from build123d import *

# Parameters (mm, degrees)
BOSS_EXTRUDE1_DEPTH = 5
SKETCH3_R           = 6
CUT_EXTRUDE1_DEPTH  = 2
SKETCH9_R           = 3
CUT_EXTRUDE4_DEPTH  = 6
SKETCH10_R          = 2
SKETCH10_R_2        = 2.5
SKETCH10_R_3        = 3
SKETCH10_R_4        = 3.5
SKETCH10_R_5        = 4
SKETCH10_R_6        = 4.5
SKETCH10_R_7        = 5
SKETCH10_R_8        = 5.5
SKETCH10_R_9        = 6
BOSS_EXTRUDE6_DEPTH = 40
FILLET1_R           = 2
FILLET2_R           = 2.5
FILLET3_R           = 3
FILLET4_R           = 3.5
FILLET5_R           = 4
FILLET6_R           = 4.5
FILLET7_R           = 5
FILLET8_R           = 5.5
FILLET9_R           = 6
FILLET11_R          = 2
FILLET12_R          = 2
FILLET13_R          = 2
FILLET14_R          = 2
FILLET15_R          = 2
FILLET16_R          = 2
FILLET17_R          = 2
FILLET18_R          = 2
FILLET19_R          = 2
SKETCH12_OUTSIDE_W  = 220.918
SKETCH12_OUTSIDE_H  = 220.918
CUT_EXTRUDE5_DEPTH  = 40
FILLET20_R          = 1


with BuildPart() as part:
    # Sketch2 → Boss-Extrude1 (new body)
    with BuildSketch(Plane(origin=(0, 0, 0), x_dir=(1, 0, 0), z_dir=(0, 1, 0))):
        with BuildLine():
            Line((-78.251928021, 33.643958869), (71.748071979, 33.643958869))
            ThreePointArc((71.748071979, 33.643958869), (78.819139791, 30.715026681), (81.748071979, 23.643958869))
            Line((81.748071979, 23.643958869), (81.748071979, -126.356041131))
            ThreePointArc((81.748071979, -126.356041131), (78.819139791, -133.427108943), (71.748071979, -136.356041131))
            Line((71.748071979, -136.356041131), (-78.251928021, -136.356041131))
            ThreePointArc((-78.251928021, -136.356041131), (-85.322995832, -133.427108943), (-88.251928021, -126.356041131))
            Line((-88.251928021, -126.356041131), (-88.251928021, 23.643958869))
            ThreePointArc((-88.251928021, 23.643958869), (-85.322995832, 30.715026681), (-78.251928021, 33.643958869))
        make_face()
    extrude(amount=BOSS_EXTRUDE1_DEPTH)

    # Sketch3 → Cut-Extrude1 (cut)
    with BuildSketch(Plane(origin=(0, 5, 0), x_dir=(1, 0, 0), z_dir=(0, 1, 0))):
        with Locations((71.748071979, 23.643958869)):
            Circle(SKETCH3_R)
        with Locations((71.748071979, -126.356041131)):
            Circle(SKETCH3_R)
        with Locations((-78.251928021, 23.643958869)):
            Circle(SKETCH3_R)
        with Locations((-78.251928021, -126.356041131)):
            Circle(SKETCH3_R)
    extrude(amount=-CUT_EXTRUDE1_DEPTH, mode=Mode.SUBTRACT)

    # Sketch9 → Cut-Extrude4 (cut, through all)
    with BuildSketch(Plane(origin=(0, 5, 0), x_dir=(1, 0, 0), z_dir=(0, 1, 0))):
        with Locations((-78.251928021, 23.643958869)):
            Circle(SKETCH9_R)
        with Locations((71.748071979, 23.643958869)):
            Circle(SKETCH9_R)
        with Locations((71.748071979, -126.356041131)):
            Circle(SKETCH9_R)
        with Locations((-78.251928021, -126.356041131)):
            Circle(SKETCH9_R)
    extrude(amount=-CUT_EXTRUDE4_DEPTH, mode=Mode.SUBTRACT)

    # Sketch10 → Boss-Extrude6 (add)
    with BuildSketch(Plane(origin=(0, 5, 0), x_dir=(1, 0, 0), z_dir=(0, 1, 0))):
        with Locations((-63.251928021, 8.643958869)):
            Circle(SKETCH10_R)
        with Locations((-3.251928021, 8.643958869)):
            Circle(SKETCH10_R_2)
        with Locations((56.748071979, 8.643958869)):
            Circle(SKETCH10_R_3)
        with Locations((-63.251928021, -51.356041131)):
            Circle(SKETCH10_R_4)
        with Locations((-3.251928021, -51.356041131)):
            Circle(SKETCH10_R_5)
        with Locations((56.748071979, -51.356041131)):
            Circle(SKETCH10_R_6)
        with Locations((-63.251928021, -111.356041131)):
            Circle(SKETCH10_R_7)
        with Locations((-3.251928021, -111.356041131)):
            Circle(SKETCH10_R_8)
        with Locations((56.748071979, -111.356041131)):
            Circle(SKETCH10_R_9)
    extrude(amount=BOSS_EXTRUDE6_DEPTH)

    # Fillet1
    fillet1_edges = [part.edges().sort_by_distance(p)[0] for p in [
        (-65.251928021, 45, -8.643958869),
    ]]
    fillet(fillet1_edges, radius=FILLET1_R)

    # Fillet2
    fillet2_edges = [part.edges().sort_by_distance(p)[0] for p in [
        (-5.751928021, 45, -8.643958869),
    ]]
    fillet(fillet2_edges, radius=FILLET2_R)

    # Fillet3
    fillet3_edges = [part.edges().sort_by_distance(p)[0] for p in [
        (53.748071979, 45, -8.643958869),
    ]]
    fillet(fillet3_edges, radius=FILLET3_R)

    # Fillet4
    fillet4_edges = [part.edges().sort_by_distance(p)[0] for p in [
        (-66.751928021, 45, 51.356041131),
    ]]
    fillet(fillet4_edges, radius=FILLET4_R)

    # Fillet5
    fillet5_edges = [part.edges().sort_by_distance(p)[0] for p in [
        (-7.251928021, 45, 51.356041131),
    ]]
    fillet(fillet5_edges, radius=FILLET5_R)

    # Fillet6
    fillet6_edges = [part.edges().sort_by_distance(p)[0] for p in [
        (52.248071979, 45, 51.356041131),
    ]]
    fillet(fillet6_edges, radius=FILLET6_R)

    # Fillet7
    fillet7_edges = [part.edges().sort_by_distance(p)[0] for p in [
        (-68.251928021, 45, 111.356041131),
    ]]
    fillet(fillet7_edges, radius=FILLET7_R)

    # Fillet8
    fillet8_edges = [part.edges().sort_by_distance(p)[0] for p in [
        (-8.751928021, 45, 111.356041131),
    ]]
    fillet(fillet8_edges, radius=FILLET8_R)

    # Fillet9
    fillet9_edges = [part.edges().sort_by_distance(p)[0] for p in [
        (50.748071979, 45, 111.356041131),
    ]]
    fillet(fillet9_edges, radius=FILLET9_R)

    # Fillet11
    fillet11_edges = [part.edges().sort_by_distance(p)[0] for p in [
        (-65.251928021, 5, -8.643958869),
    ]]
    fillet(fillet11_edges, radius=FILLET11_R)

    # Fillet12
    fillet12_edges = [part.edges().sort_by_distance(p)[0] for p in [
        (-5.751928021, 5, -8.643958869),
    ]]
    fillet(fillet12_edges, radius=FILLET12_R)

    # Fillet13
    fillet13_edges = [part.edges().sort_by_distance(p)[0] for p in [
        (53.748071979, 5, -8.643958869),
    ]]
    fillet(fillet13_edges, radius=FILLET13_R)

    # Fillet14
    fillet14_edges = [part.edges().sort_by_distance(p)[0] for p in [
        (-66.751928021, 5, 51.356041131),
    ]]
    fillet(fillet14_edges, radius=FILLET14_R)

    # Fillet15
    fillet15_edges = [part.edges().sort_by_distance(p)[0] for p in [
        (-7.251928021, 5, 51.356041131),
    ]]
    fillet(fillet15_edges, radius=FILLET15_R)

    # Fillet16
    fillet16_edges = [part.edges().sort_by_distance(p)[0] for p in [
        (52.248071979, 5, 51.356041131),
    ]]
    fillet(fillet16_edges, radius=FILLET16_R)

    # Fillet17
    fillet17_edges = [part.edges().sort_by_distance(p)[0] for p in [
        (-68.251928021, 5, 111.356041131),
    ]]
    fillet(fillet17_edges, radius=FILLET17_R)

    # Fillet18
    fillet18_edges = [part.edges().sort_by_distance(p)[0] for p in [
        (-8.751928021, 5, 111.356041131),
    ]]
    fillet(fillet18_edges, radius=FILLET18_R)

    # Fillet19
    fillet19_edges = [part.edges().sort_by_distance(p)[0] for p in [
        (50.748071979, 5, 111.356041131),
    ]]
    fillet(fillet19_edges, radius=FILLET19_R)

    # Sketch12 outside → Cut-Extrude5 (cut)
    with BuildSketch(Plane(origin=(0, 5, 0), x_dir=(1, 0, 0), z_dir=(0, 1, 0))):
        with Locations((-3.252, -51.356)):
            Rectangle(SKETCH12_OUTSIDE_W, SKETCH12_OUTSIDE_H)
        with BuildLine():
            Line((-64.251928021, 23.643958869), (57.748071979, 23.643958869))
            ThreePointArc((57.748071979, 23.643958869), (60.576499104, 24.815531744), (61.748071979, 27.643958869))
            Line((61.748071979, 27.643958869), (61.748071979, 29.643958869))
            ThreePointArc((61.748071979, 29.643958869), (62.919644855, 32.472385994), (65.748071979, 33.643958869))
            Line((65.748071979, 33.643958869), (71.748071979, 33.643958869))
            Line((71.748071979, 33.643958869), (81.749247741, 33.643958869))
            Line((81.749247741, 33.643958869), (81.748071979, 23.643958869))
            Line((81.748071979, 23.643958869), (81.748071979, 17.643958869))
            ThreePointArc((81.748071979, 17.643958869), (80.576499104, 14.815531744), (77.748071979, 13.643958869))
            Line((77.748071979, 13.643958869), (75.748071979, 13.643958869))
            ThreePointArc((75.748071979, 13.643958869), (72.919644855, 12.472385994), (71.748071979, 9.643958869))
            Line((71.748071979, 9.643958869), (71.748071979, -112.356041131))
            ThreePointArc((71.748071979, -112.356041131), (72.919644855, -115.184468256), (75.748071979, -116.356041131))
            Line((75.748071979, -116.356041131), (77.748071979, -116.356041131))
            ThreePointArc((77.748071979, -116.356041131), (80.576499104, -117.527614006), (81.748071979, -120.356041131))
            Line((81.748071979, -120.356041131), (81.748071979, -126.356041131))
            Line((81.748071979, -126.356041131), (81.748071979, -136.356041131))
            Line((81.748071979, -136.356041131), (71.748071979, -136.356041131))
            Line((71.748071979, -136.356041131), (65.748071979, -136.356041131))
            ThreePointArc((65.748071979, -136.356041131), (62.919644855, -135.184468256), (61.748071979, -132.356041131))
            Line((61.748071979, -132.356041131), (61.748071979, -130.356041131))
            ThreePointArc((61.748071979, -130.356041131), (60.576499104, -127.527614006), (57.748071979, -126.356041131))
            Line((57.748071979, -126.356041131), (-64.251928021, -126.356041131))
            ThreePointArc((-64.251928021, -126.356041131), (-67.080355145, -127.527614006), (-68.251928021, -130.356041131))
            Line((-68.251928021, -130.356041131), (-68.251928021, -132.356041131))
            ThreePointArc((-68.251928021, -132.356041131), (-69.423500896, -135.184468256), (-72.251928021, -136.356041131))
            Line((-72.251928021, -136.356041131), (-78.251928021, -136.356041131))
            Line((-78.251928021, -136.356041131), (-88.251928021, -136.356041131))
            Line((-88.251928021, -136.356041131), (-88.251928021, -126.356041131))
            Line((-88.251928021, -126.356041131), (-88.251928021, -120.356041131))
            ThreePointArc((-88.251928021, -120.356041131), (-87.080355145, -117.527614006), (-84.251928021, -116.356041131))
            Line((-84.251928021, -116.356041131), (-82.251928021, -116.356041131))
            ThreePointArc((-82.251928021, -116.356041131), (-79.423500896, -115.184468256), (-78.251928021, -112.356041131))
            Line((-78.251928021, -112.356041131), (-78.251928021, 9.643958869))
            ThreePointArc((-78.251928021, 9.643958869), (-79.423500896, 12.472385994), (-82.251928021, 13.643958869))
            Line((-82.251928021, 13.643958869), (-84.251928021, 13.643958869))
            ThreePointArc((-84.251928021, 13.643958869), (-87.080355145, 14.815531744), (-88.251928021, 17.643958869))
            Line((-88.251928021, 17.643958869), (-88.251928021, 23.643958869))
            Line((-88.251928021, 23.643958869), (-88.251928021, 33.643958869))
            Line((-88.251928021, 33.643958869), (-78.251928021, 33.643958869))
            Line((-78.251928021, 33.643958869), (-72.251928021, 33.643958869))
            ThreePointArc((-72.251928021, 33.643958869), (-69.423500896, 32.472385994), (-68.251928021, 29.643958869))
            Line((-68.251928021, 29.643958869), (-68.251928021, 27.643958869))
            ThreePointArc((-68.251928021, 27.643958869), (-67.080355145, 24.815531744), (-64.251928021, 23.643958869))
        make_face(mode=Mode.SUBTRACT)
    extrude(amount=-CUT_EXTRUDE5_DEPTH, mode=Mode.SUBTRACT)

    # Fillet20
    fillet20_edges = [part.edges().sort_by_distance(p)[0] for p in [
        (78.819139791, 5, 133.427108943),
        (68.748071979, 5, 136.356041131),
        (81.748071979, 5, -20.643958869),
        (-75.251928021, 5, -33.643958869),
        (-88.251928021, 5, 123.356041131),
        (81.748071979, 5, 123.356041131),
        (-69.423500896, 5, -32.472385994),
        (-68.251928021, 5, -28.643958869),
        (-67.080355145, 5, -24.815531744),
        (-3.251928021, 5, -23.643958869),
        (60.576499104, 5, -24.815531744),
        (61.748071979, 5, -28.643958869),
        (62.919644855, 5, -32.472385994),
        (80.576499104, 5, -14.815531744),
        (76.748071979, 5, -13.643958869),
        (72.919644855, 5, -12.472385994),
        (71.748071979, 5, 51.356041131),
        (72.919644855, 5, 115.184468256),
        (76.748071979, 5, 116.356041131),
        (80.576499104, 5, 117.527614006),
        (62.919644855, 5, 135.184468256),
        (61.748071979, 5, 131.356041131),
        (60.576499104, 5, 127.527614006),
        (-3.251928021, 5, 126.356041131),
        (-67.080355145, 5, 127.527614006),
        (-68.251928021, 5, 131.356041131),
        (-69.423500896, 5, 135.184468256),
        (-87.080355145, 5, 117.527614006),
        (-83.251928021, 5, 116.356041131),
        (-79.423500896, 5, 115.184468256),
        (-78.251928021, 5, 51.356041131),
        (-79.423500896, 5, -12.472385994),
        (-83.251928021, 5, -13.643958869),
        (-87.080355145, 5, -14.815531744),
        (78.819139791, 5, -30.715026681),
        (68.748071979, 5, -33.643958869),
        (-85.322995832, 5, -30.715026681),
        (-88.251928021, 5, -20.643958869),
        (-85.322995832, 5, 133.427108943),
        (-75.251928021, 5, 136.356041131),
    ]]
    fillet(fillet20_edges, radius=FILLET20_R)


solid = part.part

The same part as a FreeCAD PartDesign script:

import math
import FreeCAD as App
import Part
import Sketcher
from FreeCAD import Vector
Q = App.Units.Quantity


def edges_at(feature, points):
    """Names of the edges that pass closest to the given points."""
    edges = feature.Shape.Edges
    near = lambda p: min(range(len(edges)), key=lambda i: edges[i].distToShape(Part.Vertex(*p))[0])
    return sorted({f"Edge{near(p) + 1}" for p in points})

doc = App.newDocument("Part")
body = doc.addObject("PartDesign::Body", "Body")

# Sketch on XZ plane
sketch1 = doc.addObject("Sketcher::SketchObject", "Sketch")
body.addObject(sketch1)
sketch1.AttachmentSupport = (doc.XZ_Plane, [""])
sketch1.MapMode = "FlatFace"
sketch1.addGeometry(Part.LineSegment(Vector(72, -34, 0), Vector(-78, -34, 0)), False)
sketch1.addGeometry(Part.ArcOfCircle(Part.Circle(Vector(-78, -24, 0), Vector(0, 0, 1), 10), math.radians(-180), math.radians(-90)), False)
sketch1.addGeometry(Part.LineSegment(Vector(-88, -24, 0), Vector(-88, 126, 0)), False)
sketch1.addGeometry(Part.ArcOfCircle(Part.Circle(Vector(-78, 126, 0), Vector(0, 0, 1), 10), math.radians(90), math.radians(180)), False)
sketch1.addGeometry(Part.LineSegment(Vector(-78, 136, 0), Vector(72, 136, 0)), False)
sketch1.addGeometry(Part.ArcOfCircle(Part.Circle(Vector(72, 126, 0), Vector(0, 0, 1), 10), math.radians(0), math.radians(90)), False)
sketch1.addGeometry(Part.LineSegment(Vector(82, 126, 0), Vector(82, -24, 0)), False)
sketch1.addGeometry(Part.ArcOfCircle(Part.Circle(Vector(72, -24, 0), Vector(0, 0, 1), 10), math.radians(-90), math.radians(0)), False)
sketch1.addConstraint(Sketcher.Constraint("Tangent", 0, 2, 1, 2))
sketch1.addConstraint(Sketcher.Constraint("Tangent", 1, 1, 2, 1))
sketch1.addConstraint(Sketcher.Constraint("Tangent", 2, 2, 3, 2))
sketch1.addConstraint(Sketcher.Constraint("Tangent", 3, 1, 4, 1))
sketch1.addConstraint(Sketcher.Constraint("Tangent", 4, 2, 5, 2))
sketch1.addConstraint(Sketcher.Constraint("Tangent", 5, 1, 6, 1))
sketch1.addConstraint(Sketcher.Constraint("Tangent", 6, 2, 7, 2))
sketch1.addConstraint(Sketcher.Constraint("Tangent", 7, 1, 0, 1))
sketch1.addConstraint(Sketcher.Constraint("Horizontal", 0))
sketch1.addConstraint(Sketcher.Constraint("Vertical", 2))
sketch1.addConstraint(Sketcher.Constraint("Horizontal", 4))
sketch1.addConstraint(Sketcher.Constraint("Vertical", 6))
sketch1.addConstraint(Sketcher.Constraint("Equal", 1, 3))
sketch1.addConstraint(Sketcher.Constraint("Equal", 3, 5))
sketch1.addConstraint(Sketcher.Constraint("Equal", 5, 7))
sketch1.addConstraint(Sketcher.Constraint("Equal", 4, 2))
sketch1.addConstraint(Sketcher.Constraint("Radius", 1, Q("10 mm")))
sketch1.addConstraint(Sketcher.Constraint("DistanceX", 0, 2, 0, 1, Q("150 mm")))
sketch1.addConstraint(Sketcher.Constraint("DistanceX", 1, 3, -1, 1, Q("78.251928 mm")))
sketch1.addConstraint(Sketcher.Constraint("DistanceY", 1, 3, -1, 1, Q("23.643959 mm")))
pad1 = doc.addObject("PartDesign::Pad", "Pad")
body.addObject(pad1)
pad1.Profile = sketch1
pad1.Length = 5
pad1.Reversed = True

# Sketch on XZ plane
sketch2 = doc.addObject("Sketcher::SketchObject", "Sketch001")
body.addObject(sketch2)
sketch2.AttachmentSupport = (doc.XZ_Plane, [""])
sketch2.MapMode = "FlatFace"
sketch2.AttachmentOffset = App.Placement(Vector(0, 0, -5), App.Rotation())
sketch2.addGeometry(Part.Circle(Vector(72, -24, 0), Vector(0, 0, 1), 6), False)
sketch2.addGeometry(Part.Circle(Vector(72, 126, 0), Vector(0, 0, 1), 6), False)
sketch2.addGeometry(Part.Circle(Vector(-78, -24, 0), Vector(0, 0, 1), 6), False)
sketch2.addGeometry(Part.Circle(Vector(-78, 126, 0), Vector(0, 0, 1), 6), False)
sketch2.addConstraint(Sketcher.Constraint("Equal", 0, 1))
sketch2.addConstraint(Sketcher.Constraint("Equal", 1, 2))
sketch2.addConstraint(Sketcher.Constraint("Equal", 2, 3))
sketch2.addConstraint(Sketcher.Constraint("Horizontal", 0, 3, 2, 3))
sketch2.addConstraint(Sketcher.Constraint("Horizontal", 1, 3, 3, 3))
sketch2.addConstraint(Sketcher.Constraint("Vertical", 0, 3, 1, 3))
sketch2.addConstraint(Sketcher.Constraint("Vertical", 2, 3, 3, 3))
sketch2.addConstraint(Sketcher.Constraint("Diameter", 0, Q("12 mm")))
sketch2.addConstraint(Sketcher.Constraint("DistanceY", 0, 3, 1, 3, Q("150 mm")))
sketch2.addConstraint(Sketcher.Constraint("DistanceX", 2, 3, 0, 3, Q("150 mm")))
sketch2.addConstraint(Sketcher.Constraint("DistanceX", -1, 1, 0, 3, Q("71.748072 mm")))
sketch2.addConstraint(Sketcher.Constraint("DistanceY", 0, 3, -1, 1, Q("23.643959 mm")))
pocket1 = doc.addObject("PartDesign::Pocket", "Pocket")
body.addObject(pocket1)
pocket1.Profile = sketch2
pocket1.Length = 2
pocket1.Reversed = True

# Sketch on XZ plane
sketch3 = doc.addObject("Sketcher::SketchObject", "Sketch002")
body.addObject(sketch3)
sketch3.AttachmentSupport = (doc.XZ_Plane, [""])
sketch3.MapMode = "FlatFace"
sketch3.AttachmentOffset = App.Placement(Vector(0, 0, -5), App.Rotation())
sketch3.addGeometry(Part.Circle(Vector(-78.3, -23.6, 0), Vector(0, 0, 1), 3), False)
sketch3.addGeometry(Part.Circle(Vector(71.7, -23.6, 0), Vector(0, 0, 1), 3), False)
sketch3.addGeometry(Part.Circle(Vector(71.7, 126.4, 0), Vector(0, 0, 1), 3), False)
sketch3.addGeometry(Part.Circle(Vector(-78.3, 126.4, 0), Vector(0, 0, 1), 3), False)
sketch3.addConstraint(Sketcher.Constraint("Equal", 0, 1))
sketch3.addConstraint(Sketcher.Constraint("Equal", 1, 2))
sketch3.addConstraint(Sketcher.Constraint("Equal", 2, 3))
sketch3.addConstraint(Sketcher.Constraint("Horizontal", 0, 3, 1, 3))
sketch3.addConstraint(Sketcher.Constraint("Horizontal", 2, 3, 3, 3))
sketch3.addConstraint(Sketcher.Constraint("Vertical", 1, 3, 2, 3))
sketch3.addConstraint(Sketcher.Constraint("Vertical", 0, 3, 3, 3))
sketch3.addConstraint(Sketcher.Constraint("Diameter", 0, Q("6 mm")))
sketch3.addConstraint(Sketcher.Constraint("DistanceX", 0, 3, 1, 3, Q("150 mm")))
sketch3.addConstraint(Sketcher.Constraint("DistanceY", 1, 3, 2, 3, Q("150 mm")))
sketch3.addConstraint(Sketcher.Constraint("DistanceX", 0, 3, -1, 1, Q("78.251928 mm")))
sketch3.addConstraint(Sketcher.Constraint("DistanceY", 0, 3, -1, 1, Q("23.643959 mm")))
pocket2 = doc.addObject("PartDesign::Pocket", "Pocket001")
body.addObject(pocket2)
pocket2.Profile = sketch3
pocket2.Type = "ThroughAll"
pocket2.Reversed = True

# Sketch on XZ plane
sketch4 = doc.addObject("Sketcher::SketchObject", "Sketch003")
body.addObject(sketch4)
sketch4.AttachmentSupport = (doc.XZ_Plane, [""])
sketch4.MapMode = "FlatFace"
sketch4.AttachmentOffset = App.Placement(Vector(0, 0, -5), App.Rotation())
sketch4.addGeometry(Part.Circle(Vector(-63.3, -8.6, 0), Vector(0, 0, 1), 2), False)
sketch4.addGeometry(Part.Circle(Vector(-3.3, -8.6, 0), Vector(0, 0, 1), 2.5), False)
sketch4.addGeometry(Part.Circle(Vector(56.7, -8.6, 0), Vector(0, 0, 1), 3), False)
sketch4.addGeometry(Part.Circle(Vector(-63.3, 51.4, 0), Vector(0, 0, 1), 3.5), False)
sketch4.addGeometry(Part.Circle(Vector(-3.3, 51.4, 0), Vector(0, 0, 1), 4), False)
sketch4.addGeometry(Part.Circle(Vector(56.7, 51.4, 0), Vector(0, 0, 1), 4.5), False)
sketch4.addGeometry(Part.Circle(Vector(-63.3, 111.4, 0), Vector(0, 0, 1), 5), False)
sketch4.addGeometry(Part.Circle(Vector(-3.3, 111.4, 0), Vector(0, 0, 1), 5.5), False)
sketch4.addGeometry(Part.Circle(Vector(56.7, 111.4, 0), Vector(0, 0, 1), 6), False)
sketch4.addConstraint(Sketcher.Constraint("Horizontal", 0, 3, 1, 3))
sketch4.addConstraint(Sketcher.Constraint("Horizontal", 1, 3, 2, 3))
sketch4.addConstraint(Sketcher.Constraint("Horizontal", 3, 3, 4, 3))
sketch4.addConstraint(Sketcher.Constraint("Horizontal", 4, 3, 5, 3))
sketch4.addConstraint(Sketcher.Constraint("Horizontal", 6, 3, 7, 3))
sketch4.addConstraint(Sketcher.Constraint("Horizontal", 7, 3, 8, 3))
sketch4.addConstraint(Sketcher.Constraint("Vertical", 0, 3, 3, 3))
sketch4.addConstraint(Sketcher.Constraint("Vertical", 1, 3, 4, 3))
sketch4.addConstraint(Sketcher.Constraint("Vertical", 2, 3, 5, 3))
sketch4.addConstraint(Sketcher.Constraint("Vertical", 3, 3, 6, 3))
sketch4.addConstraint(Sketcher.Constraint("Vertical", 4, 3, 7, 3))
sketch4.addConstraint(Sketcher.Constraint("Vertical", 5, 3, 8, 3))
sketch4.addConstraint(Sketcher.Constraint("Diameter", 0, Q("4 mm")))
sketch4.addConstraint(Sketcher.Constraint("Diameter", 1, Q("5 mm")))
sketch4.addConstraint(Sketcher.Constraint("Diameter", 2, Q("6 mm")))
sketch4.addConstraint(Sketcher.Constraint("Diameter", 3, Q("7 mm")))
sketch4.addConstraint(Sketcher.Constraint("Diameter", 4, Q("8 mm")))
sketch4.addConstraint(Sketcher.Constraint("Diameter", 5, Q("9 mm")))
sketch4.addConstraint(Sketcher.Constraint("Diameter", 6, Q("10 mm")))
sketch4.addConstraint(Sketcher.Constraint("Diameter", 7, Q("11 mm")))
sketch4.addConstraint(Sketcher.Constraint("Diameter", 8, Q("12 mm")))
sketch4.addConstraint(Sketcher.Constraint("DistanceX", 0, 3, 1, 3, Q("60 mm")))
sketch4.addConstraint(Sketcher.Constraint("DistanceX", 1, 3, 2, 3, Q("60 mm")))
sketch4.addConstraint(Sketcher.Constraint("DistanceY", 0, 3, 3, 3, Q("60 mm")))
sketch4.addConstraint(Sketcher.Constraint("DistanceY", 3, 3, 6, 3, Q("60 mm")))
sketch4.addConstraint(Sketcher.Constraint("DistanceX", 0, 3, -1, 1, Q("63.251928 mm")))
sketch4.addConstraint(Sketcher.Constraint("DistanceY", 0, 3, -1, 1, Q("8.643959 mm")))
pad2 = doc.addObject("PartDesign::Pad", "Pad001")
body.addObject(pad2)
pad2.Profile = sketch4
pad2.Length = 40
pad2.Reversed = True
doc.recompute()

fillet = doc.addObject("PartDesign::Fillet", "Fillet")
body.addObject(fillet)
fillet.Base = (pad2, edges_at(pad2, [(-65.252, 45, -8.644)]))
fillet.Radius = 2
doc.recompute()

fillet2 = doc.addObject("PartDesign::Fillet", "Fillet001")
body.addObject(fillet2)
fillet2.Base = (fillet, edges_at(fillet, [(-5.752, 45, -8.644)]))
fillet2.Radius = 2.5
doc.recompute()

fillet3 = doc.addObject("PartDesign::Fillet", "Fillet002")
body.addObject(fillet3)
fillet3.Base = (fillet2, edges_at(fillet2, [(53.748, 45, -8.644)]))
fillet3.Radius = 3
doc.recompute()

fillet4 = doc.addObject("PartDesign::Fillet", "Fillet003")
body.addObject(fillet4)
fillet4.Base = (fillet3, edges_at(fillet3, [(-66.752, 45, 51.356)]))
fillet4.Radius = 3.5
doc.recompute()

fillet5 = doc.addObject("PartDesign::Fillet", "Fillet004")
body.addObject(fillet5)
fillet5.Base = (fillet4, edges_at(fillet4, [(-7.252, 45, 51.356)]))
fillet5.Radius = 4
doc.recompute()

fillet6 = doc.addObject("PartDesign::Fillet", "Fillet005")
body.addObject(fillet6)
fillet6.Base = (fillet5, edges_at(fillet5, [(52.248, 45, 51.356)]))
fillet6.Radius = 4.5
doc.recompute()

fillet7 = doc.addObject("PartDesign::Fillet", "Fillet006")
body.addObject(fillet7)
fillet7.Base = (fillet6, edges_at(fillet6, [(-68.252, 45, 111.356)]))
fillet7.Radius = 5
doc.recompute()

fillet8 = doc.addObject("PartDesign::Fillet", "Fillet007")
body.addObject(fillet8)
fillet8.Base = (fillet7, edges_at(fillet7, [(-8.752, 45, 111.356)]))
fillet8.Radius = 5.5
doc.recompute()

fillet9 = doc.addObject("PartDesign::Fillet", "Fillet008")
body.addObject(fillet9)
fillet9.Base = (fillet8, edges_at(fillet8, [(50.748, 45, 111.356)]))
fillet9.Radius = 6
doc.recompute()

fillet10 = doc.addObject("PartDesign::Fillet", "Fillet009")
body.addObject(fillet10)
fillet10.Base = (fillet9, edges_at(fillet9, [(-65.252, 5, -8.644)]))
fillet10.Radius = 2
doc.recompute()

fillet11 = doc.addObject("PartDesign::Fillet", "Fillet010")
body.addObject(fillet11)
fillet11.Base = (fillet10, edges_at(fillet10, [(-5.752, 5, -8.644)]))
fillet11.Radius = 2
doc.recompute()

fillet12 = doc.addObject("PartDesign::Fillet", "Fillet011")
body.addObject(fillet12)
fillet12.Base = (fillet11, edges_at(fillet11, [(53.748, 5, -8.644)]))
fillet12.Radius = 2
doc.recompute()

fillet13 = doc.addObject("PartDesign::Fillet", "Fillet012")
body.addObject(fillet13)
fillet13.Base = (fillet12, edges_at(fillet12, [(-66.752, 5, 51.356)]))
fillet13.Radius = 2
doc.recompute()

fillet14 = doc.addObject("PartDesign::Fillet", "Fillet013")
body.addObject(fillet14)
fillet14.Base = (fillet13, edges_at(fillet13, [(-7.252, 5, 51.356)]))
fillet14.Radius = 2
doc.recompute()

fillet15 = doc.addObject("PartDesign::Fillet", "Fillet014")
body.addObject(fillet15)
fillet15.Base = (fillet14, edges_at(fillet14, [(52.248, 5, 51.356)]))
fillet15.Radius = 2
doc.recompute()

fillet16 = doc.addObject("PartDesign::Fillet", "Fillet015")
body.addObject(fillet16)
fillet16.Base = (fillet15, edges_at(fillet15, [(-68.252, 5, 111.356)]))
fillet16.Radius = 2
doc.recompute()

fillet17 = doc.addObject("PartDesign::Fillet", "Fillet016")
body.addObject(fillet17)
fillet17.Base = (fillet16, edges_at(fillet16, [(-8.752, 5, 111.356)]))
fillet17.Radius = 2
doc.recompute()

fillet18 = doc.addObject("PartDesign::Fillet", "Fillet017")
body.addObject(fillet18)
fillet18.Base = (fillet17, edges_at(fillet17, [(50.748, 5, 111.356)]))
fillet18.Radius = 2

# Sketch on XZ plane
sketch5 = doc.addObject("Sketcher::SketchObject", "Sketch004")
body.addObject(sketch5)
sketch5.AttachmentSupport = (doc.XZ_Plane, [""])
sketch5.MapMode = "FlatFace"
sketch5.AttachmentOffset = App.Placement(Vector(0, 0, -5), App.Rotation())
sketch5.addGeometry(Part.LineSegment(Vector(-113.7, -59.1, 0), Vector(-113.7, 161.8, 0)), False)
sketch5.addGeometry(Part.LineSegment(Vector(-113.7, 161.8, 0), Vector(107.2, 161.8, 0)), False)
sketch5.addGeometry(Part.LineSegment(Vector(107.2, 161.8, 0), Vector(107.2, -59.1, 0)), False)
sketch5.addGeometry(Part.LineSegment(Vector(107.2, -59.1, 0), Vector(-113.7, -59.1, 0)), False)
sketch5.addGeometry(Part.ArcOfCircle(Part.Circle(Vector(-64.3, -27.6, 0), Vector(0, 0, 1), 4), math.radians(90), math.radians(180)), False)
sketch5.addGeometry(Part.LineSegment(Vector(-64.3, -23.6, 0), Vector(57.7, -23.6, 0)), False)
sketch5.addGeometry(Part.ArcOfCircle(Part.Circle(Vector(57.7, -27.6, 0), Vector(0, 0, 1), 4), math.radians(0), math.radians(90)), False)
sketch5.addGeometry(Part.LineSegment(Vector(61.7, -27.6, 0), Vector(61.7, -29.6, 0)), False)
sketch5.addGeometry(Part.ArcOfCircle(Part.Circle(Vector(65.7, -29.6, 0), Vector(0, 0, 1), 4), math.radians(-180), math.radians(-90)), False)
sketch5.addGeometry(Part.LineSegment(Vector(65.7, -33.6, 0), Vector(81.7, -33.6, 0)), False)
sketch5.addGeometry(Part.LineSegment(Vector(81.7, -33.6, 0), Vector(81.7, -23.6, 0)), False)
sketch5.addGeometry(Part.LineSegment(Vector(81.7, -23.6, 0), Vector(81.7, -17.6, 0)), False)
sketch5.addGeometry(Part.ArcOfCircle(Part.Circle(Vector(77.7, -17.6, 0), Vector(0, 0, 1), 4), math.radians(0), math.radians(90)), False)
sketch5.addGeometry(Part.LineSegment(Vector(77.7, -13.6, 0), Vector(75.7, -13.6, 0)), False)
sketch5.addGeometry(Part.ArcOfCircle(Part.Circle(Vector(75.7, -9.6, 0), Vector(0, 0, 1), 4), math.radians(-180), math.radians(-90)), False)
sketch5.addGeometry(Part.LineSegment(Vector(71.7, -9.6, 0), Vector(71.7, 112.4, 0)), False)
sketch5.addGeometry(Part.ArcOfCircle(Part.Circle(Vector(75.7, 112.4, 0), Vector(0, 0, 1), 4), math.radians(90), math.radians(180)), False)
sketch5.addGeometry(Part.LineSegment(Vector(75.7, 116.4, 0), Vector(77.7, 116.4, 0)), False)
sketch5.addGeometry(Part.ArcOfCircle(Part.Circle(Vector(77.7, 120.4, 0), Vector(0, 0, 1), 4), math.radians(-90), math.radians(0)), False)
sketch5.addGeometry(Part.LineSegment(Vector(81.7, 120.4, 0), Vector(81.7, 136.4, 0)), False)
sketch5.addGeometry(Part.LineSegment(Vector(81.7, 136.4, 0), Vector(65.7, 136.4, 0)), False)
sketch5.addGeometry(Part.ArcOfCircle(Part.Circle(Vector(65.7, 132.4, 0), Vector(0, 0, 1), 4), math.radians(90), math.radians(180)), False)
sketch5.addGeometry(Part.LineSegment(Vector(61.7, 132.4, 0), Vector(61.7, 130.4, 0)), False)
sketch5.addGeometry(Part.ArcOfCircle(Part.Circle(Vector(57.7, 130.4, 0), Vector(0, 0, 1), 4), math.radians(-90), math.radians(0)), False)
sketch5.addGeometry(Part.LineSegment(Vector(57.7, 126.4, 0), Vector(-64.3, 126.4, 0)), False)
sketch5.addGeometry(Part.ArcOfCircle(Part.Circle(Vector(-64.3, 130.4, 0), Vector(0, 0, 1), 4), math.radians(-180), math.radians(-90)), False)
sketch5.addGeometry(Part.LineSegment(Vector(-68.3, 130.4, 0), Vector(-68.3, 132.4, 0)), False)
sketch5.addGeometry(Part.ArcOfCircle(Part.Circle(Vector(-72.3, 132.4, 0), Vector(0, 0, 1), 4), math.radians(0), math.radians(90)), False)
sketch5.addGeometry(Part.LineSegment(Vector(-72.3, 136.4, 0), Vector(-88.3, 136.4, 0)), False)
sketch5.addGeometry(Part.LineSegment(Vector(-88.3, 136.4, 0), Vector(-88.3, 120.4, 0)), False)
sketch5.addGeometry(Part.ArcOfCircle(Part.Circle(Vector(-84.3, 120.4, 0), Vector(0, 0, 1), 4), math.radians(-180), math.radians(-90)), False)
sketch5.addGeometry(Part.LineSegment(Vector(-84.3, 116.4, 0), Vector(-82.3, 116.4, 0)), False)
sketch5.addGeometry(Part.ArcOfCircle(Part.Circle(Vector(-82.3, 112.4, 0), Vector(0, 0, 1), 4), math.radians(0), math.radians(90)), False)
sketch5.addGeometry(Part.LineSegment(Vector(-78.3, 112.4, 0), Vector(-78.3, -9.6, 0)), False)
sketch5.addGeometry(Part.ArcOfCircle(Part.Circle(Vector(-82.3, -9.6, 0), Vector(0, 0, 1), 4), math.radians(-90), math.radians(0)), False)
sketch5.addGeometry(Part.LineSegment(Vector(-82.3, -13.6, 0), Vector(-84.3, -13.6, 0)), False)
sketch5.addGeometry(Part.ArcOfCircle(Part.Circle(Vector(-84.3, -17.6, 0), Vector(0, 0, 1), 4), math.radians(90), math.radians(180)), False)
sketch5.addGeometry(Part.LineSegment(Vector(-88.3, -17.6, 0), Vector(-88.3, -33.6, 0)), False)
sketch5.addGeometry(Part.LineSegment(Vector(-88.3, -33.6, 0), Vector(-72.3, -33.6, 0)), False)
sketch5.addGeometry(Part.ArcOfCircle(Part.Circle(Vector(-72.3, -29.6, 0), Vector(0, 0, 1), 4), math.radians(-90), math.radians(0)), False)
sketch5.addGeometry(Part.LineSegment(Vector(-68.3, -29.6, 0), Vector(-68.3, -27.6, 0)), False)
sketch5.addConstraint(Sketcher.Constraint("Coincident", 0, 2, 1, 1))
sketch5.addConstraint(Sketcher.Constraint("Coincident", 1, 2, 2, 1))
sketch5.addConstraint(Sketcher.Constraint("Coincident", 2, 2, 3, 1))
sketch5.addConstraint(Sketcher.Constraint("Coincident", 3, 2, 0, 1))
sketch5.addConstraint(Sketcher.Constraint("Tangent", 4, 1, 5, 1))
sketch5.addConstraint(Sketcher.Constraint("Tangent", 5, 2, 6, 2))
sketch5.addConstraint(Sketcher.Constraint("Tangent", 6, 1, 7, 1))
sketch5.addConstraint(Sketcher.Constraint("Tangent", 7, 2, 8, 1))
sketch5.addConstraint(Sketcher.Constraint("Tangent", 8, 2, 9, 1))
sketch5.addConstraint(Sketcher.Constraint("Coincident", 9, 2, 10, 1))
sketch5.addConstraint(Sketcher.Constraint("Coincident", 10, 2, 11, 1))
sketch5.addConstraint(Sketcher.Constraint("Tangent", 11, 2, 12, 1))
sketch5.addConstraint(Sketcher.Constraint("Tangent", 12, 2, 13, 1))
sketch5.addConstraint(Sketcher.Constraint("Tangent", 13, 2, 14, 2))
sketch5.addConstraint(Sketcher.Constraint("Tangent", 14, 1, 15, 1))
sketch5.addConstraint(Sketcher.Constraint("Tangent", 15, 2, 16, 2))
sketch5.addConstraint(Sketcher.Constraint("Tangent", 16, 1, 17, 1))
sketch5.addConstraint(Sketcher.Constraint("Tangent", 17, 2, 18, 1))
sketch5.addConstraint(Sketcher.Constraint("Tangent", 18, 2, 19, 1))
sketch5.addConstraint(Sketcher.Constraint("Coincident", 19, 2, 20, 1))
sketch5.addConstraint(Sketcher.Constraint("Tangent", 20, 2, 21, 1))
sketch5.addConstraint(Sketcher.Constraint("Tangent", 21, 2, 22, 1))
sketch5.addConstraint(Sketcher.Constraint("Tangent", 22, 2, 23, 2))
sketch5.addConstraint(Sketcher.Constraint("Tangent", 23, 1, 24, 1))
sketch5.addConstraint(Sketcher.Constraint("Tangent", 24, 2, 25, 2))
sketch5.addConstraint(Sketcher.Constraint("Tangent", 25, 1, 26, 1))
sketch5.addConstraint(Sketcher.Constraint("Tangent", 26, 2, 27, 1))
sketch5.addConstraint(Sketcher.Constraint("Tangent", 27, 2, 28, 1))
sketch5.addConstraint(Sketcher.Constraint("Coincident", 28, 2, 29, 1))
sketch5.addConstraint(Sketcher.Constraint("Tangent", 29, 2, 30, 1))
sketch5.addConstraint(Sketcher.Constraint("Tangent", 30, 2, 31, 1))
sketch5.addConstraint(Sketcher.Constraint("Tangent", 31, 2, 32, 2))
sketch5.addConstraint(Sketcher.Constraint("Tangent", 32, 1, 33, 1))
sketch5.addConstraint(Sketcher.Constraint("Tangent", 33, 2, 34, 2))
sketch5.addConstraint(Sketcher.Constraint("Tangent", 34, 1, 35, 1))
sketch5.addConstraint(Sketcher.Constraint("Tangent", 35, 2, 36, 1))
sketch5.addConstraint(Sketcher.Constraint("Tangent", 36, 2, 37, 1))
sketch5.addConstraint(Sketcher.Constraint("Coincident", 37, 2, 38, 1))
sketch5.addConstraint(Sketcher.Constraint("Tangent", 38, 2, 39, 1))
sketch5.addConstraint(Sketcher.Constraint("Tangent", 39, 2, 40, 1))
sketch5.addConstraint(Sketcher.Constraint("Tangent", 40, 2, 4, 2))
sketch5.addConstraint(Sketcher.Constraint("Vertical", 0))
sketch5.addConstraint(Sketcher.Constraint("Horizontal", 1))
sketch5.addConstraint(Sketcher.Constraint("Vertical", 2))
sketch5.addConstraint(Sketcher.Constraint("Horizontal", 3))
sketch5.addConstraint(Sketcher.Constraint("Horizontal", 5))
sketch5.addConstraint(Sketcher.Constraint("Vertical", 7))
sketch5.addConstraint(Sketcher.Constraint("Horizontal", 9))
sketch5.addConstraint(Sketcher.Constraint("Vertical", 11))
sketch5.addConstraint(Sketcher.Constraint("Horizontal", 13))
sketch5.addConstraint(Sketcher.Constraint("Vertical", 15))
sketch5.addConstraint(Sketcher.Constraint("Horizontal", 17))
sketch5.addConstraint(Sketcher.Constraint("Vertical", 19))
sketch5.addConstraint(Sketcher.Constraint("Horizontal", 20))
sketch5.addConstraint(Sketcher.Constraint("Vertical", 22))
sketch5.addConstraint(Sketcher.Constraint("Horizontal", 24))
sketch5.addConstraint(Sketcher.Constraint("Vertical", 26))
sketch5.addConstraint(Sketcher.Constraint("Horizontal", 28))
sketch5.addConstraint(Sketcher.Constraint("Vertical", 29))
sketch5.addConstraint(Sketcher.Constraint("Horizontal", 31))
sketch5.addConstraint(Sketcher.Constraint("Vertical", 33))
sketch5.addConstraint(Sketcher.Constraint("Horizontal", 35))
sketch5.addConstraint(Sketcher.Constraint("Vertical", 37))
sketch5.addConstraint(Sketcher.Constraint("Horizontal", 38))
sketch5.addConstraint(Sketcher.Constraint("Vertical", 40))
sketch5.addConstraint(Sketcher.Constraint("Equal", 4, 6))
sketch5.addConstraint(Sketcher.Constraint("Equal", 6, 8))
sketch5.addConstraint(Sketcher.Constraint("Equal", 8, 12))
sketch5.addConstraint(Sketcher.Constraint("Equal", 12, 14))
sketch5.addConstraint(Sketcher.Constraint("Equal", 14, 16))
sketch5.addConstraint(Sketcher.Constraint("Equal", 16, 18))
sketch5.addConstraint(Sketcher.Constraint("Equal", 18, 21))
sketch5.addConstraint(Sketcher.Constraint("Equal", 21, 23))
sketch5.addConstraint(Sketcher.Constraint("Equal", 23, 25))
sketch5.addConstraint(Sketcher.Constraint("Equal", 25, 27))
sketch5.addConstraint(Sketcher.Constraint("Equal", 27, 30))
sketch5.addConstraint(Sketcher.Constraint("Equal", 30, 32))
sketch5.addConstraint(Sketcher.Constraint("Equal", 32, 34))
sketch5.addConstraint(Sketcher.Constraint("Equal", 34, 36))
sketch5.addConstraint(Sketcher.Constraint("Equal", 36, 39))
sketch5.addConstraint(Sketcher.Constraint("Horizontal", 21, 3, 27, 3))
sketch5.addConstraint(Sketcher.Constraint("Horizontal", 18, 3, 30, 3))
sketch5.addConstraint(Sketcher.Constraint("Horizontal", 14, 3, 34, 3))
sketch5.addConstraint(Sketcher.Constraint("Horizontal", 8, 3, 39, 3))
sketch5.addConstraint(Sketcher.Constraint("Horizontal", 5, 2, 10, 2))
sketch5.addConstraint(Sketcher.Constraint("Vertical", 12, 3, 18, 3))
sketch5.addConstraint(Sketcher.Constraint("Vertical", 8, 3, 21, 3))
sketch5.addConstraint(Sketcher.Constraint("Vertical", 4, 3, 25, 3))
sketch5.addConstraint(Sketcher.Constraint("Vertical", 30, 3, 36, 3))
sketch5.addConstraint(Sketcher.Constraint("Equal", 20, 28))
sketch5.addConstraint(Sketcher.Constraint("Equal", 17, 31))
sketch5.addConstraint(Sketcher.Constraint("Equal", 3, 0))
sketch5.addConstraint(Sketcher.Constraint("Equal", 35, 7))
sketch5.addConstraint(Sketcher.Constraint("Equal", 24, 15))
sketch5.addConstraint(Sketcher.Constraint("Equal", 38, 19))
sketch5.addConstraint(Sketcher.Constraint("Equal", 7, 22))
sketch5.addConstraint(Sketcher.Constraint("Equal", 29, 37))
sketch5.addConstraint(Sketcher.Constraint("Radius", 4, Q("4 mm")))
sketch5.addConstraint(Sketcher.Constraint("DistanceX", 5, 1, 5, 2, Q("122 mm")))
sketch5.addConstraint(Sketcher.Constraint("DistanceX", 13, 2, 13, 1, Q("2 mm")))
sketch5.addConstraint(Sketcher.Constraint("DistanceX", 20, 2, 20, 1, Q("16 mm")))
sketch5.addConstraint(Sketcher.Constraint("DistanceX", 1, 1, 1, 2, Q("220.918 mm")))
sketch5.addConstraint(Sketcher.Constraint("DistanceX", 0, 2, -1, 1, Q("113.711 mm")))
sketch5.addConstraint(Sketcher.Constraint("DistanceY", -1, 1, 0, 2, Q("161.815 mm")))
sketch5.addConstraint(Sketcher.Constraint("DistanceX", 9, 1, 9, 2, Q("16.001176 mm")))
sketch5.addConstraint(Sketcher.Constraint("DistanceX", 4, 3, -1, 1, Q("64.251928 mm")))
sketch5.addConstraint(Sketcher.Constraint("DistanceY", 4, 3, -1, 1, Q("27.643959 mm")))
pocket3 = doc.addObject("PartDesign::Pocket", "Pocket002")
body.addObject(pocket3)
pocket3.Profile = sketch5
pocket3.Length = 40
pocket3.Reversed = True
doc.recompute()

fillet19 = doc.addObject("PartDesign::Fillet", "Fillet018")
body.addObject(fillet19)
fillet19.Base = (pocket3, edges_at(pocket3, [
    (78.819, 5, 133.427),
    (68.748, 5, 136.356),
    (81.748, 5, -20.644),
    (-75.252, 5, -33.644),
    (-88.252, 5, 123.356),
    (81.748, 5, 123.356),
    (-69.424, 5, -32.472),
    (-68.252, 5, -28.644),
    (-67.08, 5, -24.816),
    (-3.252, 5, -23.644),
    (60.576, 5, -24.816),
    (61.748, 5, -28.644),
    (62.92, 5, -32.472),
    (80.576, 5, -14.816),
    (76.748, 5, -13.644),
    (72.92, 5, -12.472),
    (71.748, 5, 51.356),
    (72.92, 5, 115.184),
    (76.748, 5, 116.356),
    (80.576, 5, 117.528),
    (62.92, 5, 135.184),
    (61.748, 5, 131.356),
    (60.576, 5, 127.528),
    (-3.252, 5, 126.356),
    (-67.08, 5, 127.528),
    (-68.252, 5, 131.356),
    (-69.424, 5, 135.184),
    (-87.08, 5, 117.528),
    (-83.252, 5, 116.356),
    (-79.424, 5, 115.184),
    (-78.252, 5, 51.356),
    (-79.424, 5, -12.472),
    (-83.252, 5, -13.644),
    (-87.08, 5, -14.816),
    (78.819, 5, -30.715),
    (68.748, 5, -33.644),
    (-85.323, 5, -30.715),
    (-88.252, 5, -20.644),
    (-85.323, 5, 133.427),
    (-75.252, 5, 136.356),
]))
fillet19.Radius = 1

doc.recompute()
